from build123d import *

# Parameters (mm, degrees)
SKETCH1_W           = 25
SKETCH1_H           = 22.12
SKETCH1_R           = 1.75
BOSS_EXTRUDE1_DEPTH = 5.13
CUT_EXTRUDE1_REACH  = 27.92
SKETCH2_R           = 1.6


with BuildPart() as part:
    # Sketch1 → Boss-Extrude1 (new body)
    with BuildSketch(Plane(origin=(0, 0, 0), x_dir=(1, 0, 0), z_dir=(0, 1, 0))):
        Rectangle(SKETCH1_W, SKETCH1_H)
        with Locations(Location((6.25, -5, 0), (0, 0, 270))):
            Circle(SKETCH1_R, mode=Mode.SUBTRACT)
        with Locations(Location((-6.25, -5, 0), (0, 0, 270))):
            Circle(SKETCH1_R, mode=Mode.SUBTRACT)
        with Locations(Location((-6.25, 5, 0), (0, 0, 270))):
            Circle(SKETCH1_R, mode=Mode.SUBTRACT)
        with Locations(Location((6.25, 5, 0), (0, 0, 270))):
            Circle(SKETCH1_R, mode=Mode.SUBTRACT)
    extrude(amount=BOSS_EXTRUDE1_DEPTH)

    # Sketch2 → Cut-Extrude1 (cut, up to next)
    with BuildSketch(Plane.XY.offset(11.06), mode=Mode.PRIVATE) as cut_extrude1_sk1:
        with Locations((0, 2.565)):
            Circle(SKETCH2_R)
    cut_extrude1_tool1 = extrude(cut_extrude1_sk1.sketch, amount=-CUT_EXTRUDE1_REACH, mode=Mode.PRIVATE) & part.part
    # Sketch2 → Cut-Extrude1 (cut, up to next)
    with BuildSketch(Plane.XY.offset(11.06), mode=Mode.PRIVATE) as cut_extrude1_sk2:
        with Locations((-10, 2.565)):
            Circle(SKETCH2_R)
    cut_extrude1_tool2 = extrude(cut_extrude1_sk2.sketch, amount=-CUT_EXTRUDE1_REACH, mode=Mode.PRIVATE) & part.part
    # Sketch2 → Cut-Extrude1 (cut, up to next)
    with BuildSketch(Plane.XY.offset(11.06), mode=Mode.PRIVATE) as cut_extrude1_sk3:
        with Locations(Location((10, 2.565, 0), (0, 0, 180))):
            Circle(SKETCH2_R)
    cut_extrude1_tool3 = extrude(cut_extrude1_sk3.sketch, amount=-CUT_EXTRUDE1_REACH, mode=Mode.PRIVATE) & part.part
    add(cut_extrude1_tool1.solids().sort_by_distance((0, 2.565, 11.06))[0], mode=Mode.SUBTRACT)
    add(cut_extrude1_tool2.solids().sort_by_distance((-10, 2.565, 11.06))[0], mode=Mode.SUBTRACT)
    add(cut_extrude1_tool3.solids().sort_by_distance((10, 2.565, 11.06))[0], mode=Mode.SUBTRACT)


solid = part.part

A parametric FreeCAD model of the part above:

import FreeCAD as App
import Part
import Sketcher

doc = App.newDocument("Part")
body = doc.addObject("PartDesign::Body", "Body")

# Sketch on XZ plane
sketch1 = doc.addObject("Sketcher::SketchObject", "Sketch")
body.addObject(sketch1)
sketch1.AttachmentSupport = (doc.XZ_Plane, [""])
sketch1.MapMode = "FlatFace"
sketch1.addGeometry([
    Part.LineSegment(App.Vector(-12.5, -11.1, 0), App.Vector(-12.5, 11.1, 0)),  # 0
    Part.LineSegment(App.Vector(-12.5, 11.1, 0), App.Vector(12.5, 11.1, 0)),  # 1
    Part.LineSegment(App.Vector(12.5, 11.1, 0), App.Vector(12.5, -11.1, 0)),  # 2
    Part.LineSegment(App.Vector(12.5, -11.1, 0), App.Vector(-12.5, -11.1, 0)),  # 3
    Part.Circle(App.Vector(-6.2, 5, 0), App.Vector(0, 0, 1), 1.8),  # 4
    Part.Circle(App.Vector(6.2, 5, 0), App.Vector(0, 0, 1), 1.8),  # 5
    Part.Circle(App.Vector(-6.2, -5, 0), App.Vector(0, 0, 1), 1.8),  # 6
    Part.Circle(App.Vector(6.2, -5, 0), App.Vector(0, 0, 1), 1.8),  # 7
], False)
sketch1.addConstraint([
    Sketcher.Constraint("Coincident", 0, 2, 1, 1),
    Sketcher.Constraint("Coincident", 1, 2, 2, 1),
    Sketcher.Constraint("Coincident", 2, 2, 3, 1),
    Sketcher.Constraint("Coincident", 3, 2, 0, 1),
    Sketcher.Constraint("Vertical", 0),
    Sketcher.Constraint("Horizontal", 1),
    Sketcher.Constraint("Vertical", 2),
    Sketcher.Constraint("Horizontal", 3),
    Sketcher.Constraint("Equal", 4, 5),
    Sketcher.Constraint("Equal", 5, 6),
    Sketcher.Constraint("Equal", 6, 7),
    Sketcher.Constraint("Symmetric", 5, 3, 6, 3, -1, 1),
    Sketcher.Constraint("Symmetric", 4, 3, 7, 3, -1, 1),
    Sketcher.Constraint("Symmetric", 0, 2, 2, 2, -1, 1),
    Sketcher.Constraint("Symmetric", 4, 3, 5, 3, -2),
    Sketcher.Constraint("Diameter", 4, 3.5),
    Sketcher.Constraint("DistanceX", 1, 1, 1, 2, 25.0),
    Sketcher.Constraint("DistanceY", -1, 1, 4, 3, 5.0),
    Sketcher.Constraint("DistanceY", 0, 1, 0, 2, 22.12),
    Sketcher.Constraint("DistanceX", 4, 3, 5, 3, 12.5),
])
pad1 = doc.addObject("PartDesign::Pad", "Pad")
body.addObject(pad1)
pad1.Profile = sketch1
pad1.Length = 5.13
pad1.Reversed = True

# Sketch on XY plane
sketch2 = doc.addObject("Sketcher::SketchObject", "Sketch001")
body.addObject(sketch2)
sketch2.AttachmentSupport = (doc.XY_Plane, [""])
sketch2.MapMode = "FlatFace"
sketch2.AttachmentOffset = App.Placement(App.Vector(0, 0, 11.06), App.Rotation())
sketch2.addGeometry(Part.Circle(App.Vector(0, 2.6, 0), App.Vector(0, 0, 1), 1.6), False)
sketch2.addConstraint([
    Sketcher.Constraint("PointOnObject", 0, 3, -2),
    Sketcher.Constraint("Diameter", 0, 3.2),
    Sketcher.Constraint("DistanceY", -1, 1, 0, 3, 2.565),
])
pocket1 = doc.addObject("PartDesign::Pocket", "Pocket")
body.addObject(pocket1)
pocket1.Profile = sketch2
pocket1.Type = "UpToFirst"

# Sketch on XY plane
sketch3 = doc.addObject("Sketcher::SketchObject", "Sketch002")
body.addObject(sketch3)
sketch3.AttachmentSupport = (doc.XY_Plane, [""])
sketch3.MapMode = "FlatFace"
sketch3.AttachmentOffset = App.Placement(App.Vector(0, 0, 11.06), App.Rotation())
sketch3.addGeometry(Part.Circle(App.Vector(-10, 2.6, 0), App.Vector(0, 0, 1), 1.6), False)
sketch3.addConstraint([
    Sketcher.Constraint("Diameter", 0, 3.2),
    Sketcher.Constraint("DistanceX", 0, 3, -1, 1, 10.0),
    Sketcher.Constraint("DistanceY", -1, 1, 0, 3, 2.565),
])
pocket2 = doc.addObject("PartDesign::Pocket", "Pocket001")
body.addObject(pocket2)
pocket2.Profile = sketch3
pocket2.Type = "UpToFirst"

# Sketch on XY plane
sketch4 = doc.addObject("Sketcher::SketchObject", "Sketch003")
body.addObject(sketch4)
sketch4.AttachmentSupport = (doc.XY_Plane, [""])
sketch4.MapMode = "FlatFace"
sketch4.AttachmentOffset = App.Placement(App.Vector(0, 0, 11.06), App.Rotation())
sketch4.addGeometry(Part.Circle(App.Vector(10, 2.6, 0), App.Vector(0, 0, 1), 1.6), False)
sketch4.addConstraint([
    Sketcher.Constraint("Diameter", 0, 3.2),
    Sketcher.Constraint("DistanceX", -1, 1, 0, 3, 10.0),
    Sketcher.Constraint("DistanceY", -1, 1, 0, 3, 2.565),
])
pocket3 = doc.addObject("PartDesign::Pocket", "Pocket002")
body.addObject(pocket3)
pocket3.Profile = sketch4
pocket3.Type = "UpToFirst"

doc.recompute()
